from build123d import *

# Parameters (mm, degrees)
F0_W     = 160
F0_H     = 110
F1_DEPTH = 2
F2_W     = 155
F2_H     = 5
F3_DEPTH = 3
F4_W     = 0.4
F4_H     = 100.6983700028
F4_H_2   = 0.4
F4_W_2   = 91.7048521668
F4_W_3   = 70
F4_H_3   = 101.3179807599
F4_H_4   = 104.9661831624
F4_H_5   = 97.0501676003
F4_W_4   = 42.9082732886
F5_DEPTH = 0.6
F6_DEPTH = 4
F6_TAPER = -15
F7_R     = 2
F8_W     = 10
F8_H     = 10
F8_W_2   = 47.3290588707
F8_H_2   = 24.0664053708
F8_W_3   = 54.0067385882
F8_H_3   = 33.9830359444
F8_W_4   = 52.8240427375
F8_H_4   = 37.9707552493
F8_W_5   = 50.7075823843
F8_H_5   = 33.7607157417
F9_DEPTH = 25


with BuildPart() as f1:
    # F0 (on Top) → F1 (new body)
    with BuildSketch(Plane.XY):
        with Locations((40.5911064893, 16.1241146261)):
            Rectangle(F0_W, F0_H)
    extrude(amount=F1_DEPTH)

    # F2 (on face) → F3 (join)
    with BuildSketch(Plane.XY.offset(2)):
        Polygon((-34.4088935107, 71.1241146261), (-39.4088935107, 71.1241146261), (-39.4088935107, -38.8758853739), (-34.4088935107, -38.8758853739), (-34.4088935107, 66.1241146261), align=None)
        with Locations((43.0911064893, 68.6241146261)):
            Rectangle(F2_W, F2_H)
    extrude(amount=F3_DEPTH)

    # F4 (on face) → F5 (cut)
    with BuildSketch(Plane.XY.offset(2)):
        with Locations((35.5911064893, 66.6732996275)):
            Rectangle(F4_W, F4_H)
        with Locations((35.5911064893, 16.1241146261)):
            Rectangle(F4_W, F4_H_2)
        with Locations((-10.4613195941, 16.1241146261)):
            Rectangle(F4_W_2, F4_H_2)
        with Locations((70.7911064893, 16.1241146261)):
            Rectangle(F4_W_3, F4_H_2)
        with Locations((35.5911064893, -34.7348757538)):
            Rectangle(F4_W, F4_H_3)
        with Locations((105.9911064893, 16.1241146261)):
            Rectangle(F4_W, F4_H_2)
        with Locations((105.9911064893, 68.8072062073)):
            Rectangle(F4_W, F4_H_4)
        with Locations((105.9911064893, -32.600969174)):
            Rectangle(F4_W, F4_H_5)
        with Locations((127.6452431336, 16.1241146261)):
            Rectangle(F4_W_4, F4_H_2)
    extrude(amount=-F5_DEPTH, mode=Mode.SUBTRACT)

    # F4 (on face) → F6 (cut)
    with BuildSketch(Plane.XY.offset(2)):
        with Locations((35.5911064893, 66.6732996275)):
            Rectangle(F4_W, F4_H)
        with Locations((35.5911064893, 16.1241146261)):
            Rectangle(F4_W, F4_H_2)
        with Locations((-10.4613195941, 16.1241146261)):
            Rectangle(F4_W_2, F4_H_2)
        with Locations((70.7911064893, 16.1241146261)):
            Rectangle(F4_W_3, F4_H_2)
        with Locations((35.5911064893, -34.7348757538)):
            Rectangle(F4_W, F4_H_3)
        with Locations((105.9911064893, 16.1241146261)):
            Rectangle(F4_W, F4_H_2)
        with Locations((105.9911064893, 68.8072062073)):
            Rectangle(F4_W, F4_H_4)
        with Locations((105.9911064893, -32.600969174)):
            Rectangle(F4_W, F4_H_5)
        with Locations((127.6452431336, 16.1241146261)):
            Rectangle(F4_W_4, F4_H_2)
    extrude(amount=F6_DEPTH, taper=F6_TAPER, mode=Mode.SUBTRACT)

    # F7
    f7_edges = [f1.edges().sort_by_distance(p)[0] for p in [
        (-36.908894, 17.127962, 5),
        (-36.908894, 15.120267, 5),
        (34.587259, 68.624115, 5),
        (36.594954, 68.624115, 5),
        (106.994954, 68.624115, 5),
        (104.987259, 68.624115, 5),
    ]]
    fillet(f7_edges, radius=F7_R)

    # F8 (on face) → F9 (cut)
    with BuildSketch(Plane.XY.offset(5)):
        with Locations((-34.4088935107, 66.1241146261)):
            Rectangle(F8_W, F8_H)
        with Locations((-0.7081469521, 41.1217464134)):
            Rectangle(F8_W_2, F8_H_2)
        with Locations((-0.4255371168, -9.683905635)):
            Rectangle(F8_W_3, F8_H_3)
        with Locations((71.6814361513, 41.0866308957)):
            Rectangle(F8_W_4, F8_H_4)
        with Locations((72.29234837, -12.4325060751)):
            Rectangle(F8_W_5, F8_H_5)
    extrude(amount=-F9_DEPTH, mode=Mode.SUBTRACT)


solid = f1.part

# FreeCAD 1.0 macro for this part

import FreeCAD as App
import Part
import Sketcher

V = App.Vector


def edges_at(feature, points):
    """Names of the edges that pass closest to the given points."""
    edges = feature.Shape.Edges
    near = lambda p: min(range(len(edges)), key=lambda i: edges[i].distToShape(Part.Vertex(*p))[0])
    return sorted({f"Edge{near(p) + 1}" for p in points})

doc = App.newDocument("Part")
body = doc.addObject("PartDesign::Body", "Body")

sketch1 = body.newObject("Sketcher::SketchObject", "Sketch")
sketch1.AttachmentSupport = (doc.getObject("XY_Plane"), [""])
sketch1.MapMode = "FlatFace"
sketch1.addGeometry(Part.LineSegment(V(-39, 71, 0), V(-39, -39, 0)), False)
sketch1.addGeometry(Part.LineSegment(V(-39, -39, 0), V(121, -39, 0)), False)
sketch1.addGeometry(Part.LineSegment(V(121, -39, 0), V(121, 71, 0)), False)
sketch1.addGeometry(Part.LineSegment(V(121, 71, 0), V(-39, 71, 0)), False)
sketch1.addConstraint(Sketcher.Constraint("Coincident", 0, 2, 1, 1))
sketch1.addConstraint(Sketcher.Constraint("Coincident", 1, 2, 2, 1))
sketch1.addConstraint(Sketcher.Constraint("Coincident", 2, 2, 3, 1))
sketch1.addConstraint(Sketcher.Constraint("Coincident", 3, 2, 0, 1))
sketch1.addConstraint(Sketcher.Constraint("Vertical", 0))
sketch1.addConstraint(Sketcher.Constraint("Horizontal", 1))
sketch1.addConstraint(Sketcher.Constraint("Vertical", 2))
sketch1.addConstraint(Sketcher.Constraint("Horizontal", 3))
sketch1.addConstraint(Sketcher.Constraint("DistanceX", 1, 1, 1, 2, 160.0))
sketch1.addConstraint(Sketcher.Constraint("DistanceY", 0, 2, 0, 1, 110.0))
sketch1.addConstraint(Sketcher.Constraint("DistanceX", 0, 2, -1, 1, 39.408894))
sketch1.addConstraint(Sketcher.Constraint("DistanceY", 0, 2, -1, 1, 38.875885))
pad1 = body.newObject("PartDesign::Pad", "Pad")
pad1.Profile = sketch1
pad1.Length = 2

sketch2 = body.newObject("Sketcher::SketchObject", "Sketch001")
sketch2.AttachmentSupport = (doc.getObject("XY_Plane"), [""])
sketch2.MapMode = "FlatFace"
sketch2.AttachmentOffset = App.Placement(V(0, 0, 2), App.Rotation())
sketch2.addGeometry(Part.LineSegment(V(-39, 71, 0), V(-39, -39, 0)), False)
sketch2.addGeometry(Part.LineSegment(V(-39, -39, 0), V(-34, -39, 0)), False)
sketch2.addGeometry(Part.LineSegment(V(-34, -39, 0), V(-34, 66, 0)), False)
sketch2.addGeometry(Part.LineSegment(V(-34, 66, 0), V(121, 66, 0)), False)
sketch2.addGeometry(Part.LineSegment(V(121, 66, 0), V(121, 71, 0)), False)
sketch2.addGeometry(Part.LineSegment(V(121, 71, 0), V(-39, 71, 0)), False)
sketch2.addConstraint(Sketcher.Constraint("Coincident", 0, 2, 1, 1))
sketch2.addConstraint(Sketcher.Constraint("Coincident", 1, 2, 2, 1))
sketch2.addConstraint(Sketcher.Constraint("Coincident", 2, 2, 3, 1))
sketch2.addConstraint(Sketcher.Constraint("Coincident", 3, 2, 4, 1))
sketch2.addConstraint(Sketcher.Constraint("Coincident", 4, 2, 5, 1))
sketch2.addConstraint(Sketcher.Constraint("Coincident", 5, 2, 0, 1))
sketch2.addConstraint(Sketcher.Constraint("Vertical", 0))
sketch2.addConstraint(Sketcher.Constraint("Horizontal", 1))
sketch2.addConstraint(Sketcher.Constraint("Vertical", 2))
sketch2.addConstraint(Sketcher.Constraint("Horizontal", 3))
sketch2.addConstraint(Sketcher.Constraint("Vertical", 4))
sketch2.addConstraint(Sketcher.Constraint("Horizontal", 5))
sketch2.addConstraint(Sketcher.Constraint("Equal", 1, 4))
sketch2.addConstraint(Sketcher.Constraint("DistanceX", 1, 1, 1, 2, 5.0))
sketch2.addConstraint(Sketcher.Constraint("DistanceX", 3, 1, 3, 2, 155.0))
sketch2.addConstraint(Sketcher.Constraint("DistanceY", 0, 2, 0, 1, 110.0))
sketch2.addConstraint(Sketcher.Constraint("DistanceX", 0, 2, -1, 1, 39.408894))
sketch2.addConstraint(Sketcher.Constraint("DistanceY", 0, 2, -1, 1, 38.875885))
pad2 = body.newObject("PartDesign::Pad", "Pad001")
pad2.Profile = sketch2
pad2.Length = 3

sketch3 = body.newObject("Sketcher::SketchObject", "Sketch002")
sketch3.AttachmentSupport = (doc.getObject("XY_Plane"), [""])
sketch3.MapMode = "FlatFace"
sketch3.AttachmentOffset = App.Placement(V(0, 0, 2), App.Rotation())
sketch3.addGeometry(Part.LineSegment(V(35.39, 117.02, 0), V(35.39, 16.32, 0)), False)
sketch3.addGeometry(Part.LineSegment(V(35.39, 16.32, 0), V(-56.31, 16.32, 0)), False)
sketch3.addGeometry(Part.LineSegment(V(-56.31, 16.32, 0), V(-56.31, 15.92, 0)), False)
sketch3.addGeometry(Part.LineSegment(V(-56.31, 15.92, 0), V(35.39, 15.92, 0)), False)
sketch3.addGeometry(Part.LineSegment(V(35.39, 15.92, 0), V(35.39, -85.39, 0)), False)
sketch3.addGeometry(Part.LineSegment(V(35.39, -85.39, 0), V(35.79, -85.39, 0)), False)
sketch3.addGeometry(Part.LineSegment(V(35.79, -85.39, 0), V(35.79, 15.92, 0)), False)
sketch3.addGeometry(Part.LineSegment(V(35.79, 15.92, 0), V(105.79, 15.92, 0)), False)
sketch3.addGeometry(Part.LineSegment(V(105.79, 15.92, 0), V(105.79, -81.13, 0)), False)
sketch3.addGeometry(Part.LineSegment(V(105.79, -81.13, 0), V(106.19, -81.13, 0)), False)
sketch3.addGeometry(Part.LineSegment(V(106.19, -81.13, 0), V(106.19, 15.92, 0)), False)
sketch3.addGeometry(Part.LineSegment(V(106.19, 15.92, 0), V(149.1, 15.92, 0)), False)
sketch3.addGeometry(Part.LineSegment(V(149.1, 15.92, 0), V(149.1, 16.32, 0)), False)
sketch3.addGeometry(Part.LineSegment(V(149.1, 16.32, 0), V(106.19, 16.32, 0)), False)
sketch3.addGeometry(Part.LineSegment(V(106.19, 16.32, 0), V(106.19, 121.29, 0)), False)
sketch3.addGeometry(Part.LineSegment(V(106.19, 121.29, 0), V(105.79, 121.29, 0)), False)
sketch3.addGeometry(Part.LineSegment(V(105.79, 121.29, 0), V(105.79, 16.32, 0)), False)
sketch3.addGeometry(Part.LineSegment(V(105.79, 16.32, 0), V(35.79, 16.32, 0)), False)
sketch3.addGeometry(Part.LineSegment(V(35.79, 16.32, 0), V(35.79, 117.02, 0)), False)
sketch3.addGeometry(Part.LineSegment(V(35.79, 117.02, 0), V(35.39, 117.02, 0)), False)
sketch3.addConstraint(Sketcher.Constraint("Coincident", 0, 2, 1, 1))
sketch3.addConstraint(Sketcher.Constraint("Coincident", 1, 2, 2, 1))
sketch3.addConstraint(Sketcher.Constraint("Coincident", 2, 2, 3, 1))
sketch3.addConstraint(Sketcher.Constraint("Coincident", 3, 2, 4, 1))
sketch3.addConstraint(Sketcher.Constraint("Coincident", 4, 2, 5, 1))
sketch3.addConstraint(Sketcher.Constraint("Coincident", 5, 2, 6, 1))
sketch3.addConstraint(Sketcher.Constraint("Coincident", 6, 2, 7, 1))
sketch3.addConstraint(Sketcher.Constraint("Coincident", 7, 2, 8, 1))
sketch3.addConstraint(Sketcher.Constraint("Coincident", 8, 2, 9, 1))
sketch3.addConstraint(Sketcher.Constraint("Coincident", 9, 2, 10, 1))
sketch3.addConstraint(Sketcher.Constraint("Coincident", 10, 2, 11, 1))
sketch3.addConstraint(Sketcher.Constraint("Coincident", 11, 2, 12, 1))
sketch3.addConstraint(Sketcher.Constraint("Coincident", 12, 2, 13, 1))
sketch3.addConstraint(Sketcher.Constraint("Coincident", 13, 2, 14, 1))
sketch3.addConstraint(Sketcher.Constraint("Coincident", 14, 2, 15, 1))
sketch3.addConstraint(Sketcher.Constraint("Coincident", 15, 2, 16, 1))
sketch3.addConstraint(Sketcher.Constraint("Coincident", 16, 2, 17, 1))
sketch3.addConstraint(Sketcher.Constraint("Coincident", 17, 2, 18, 1))
sketch3.addConstraint(Sketcher.Constraint("Coincident", 18, 2, 19, 1))
sketch3.addConstraint(Sketcher.Constraint("Coincident", 19, 2, 0, 1))
sketch3.addConstraint(Sketcher.Constraint("Vertical", 0))
sketch3.addConstraint(Sketcher.Constraint("Horizontal", 1))
sketch3.addConstraint(Sketcher.Constraint("Vertical", 2))
sketch3.addConstraint(Sketcher.Constraint("Horizontal", 3))
sketch3.addConstraint(Sketcher.Constraint("Vertical", 4))
sketch3.addConstraint(Sketcher.Constraint("Horizontal", 5))
sketch3.addConstraint(Sketcher.Constraint("Vertical", 6))
sketch3.addConstraint(Sketcher.Constraint("Horizontal", 7))
sketch3.addConstraint(Sketcher.Constraint("Vertical", 8))
sketch3.addConstraint(Sketcher.Constraint("Horizontal", 9))
sketch3.addConstraint(Sketcher.Constraint("Vertical", 10))
sketch3.addConstraint(Sketcher.Constraint("Horizontal", 11))
sketch3.addConstraint(Sketcher.Constraint("Vertical", 12))
sketch3.addConstraint(Sketcher.Constraint("Horizontal", 13))
sketch3.addConstraint(Sketcher.Constraint("Vertical", 14))
sketch3.addConstraint(Sketcher.Constraint("Horizontal", 15))
sketch3.addConstraint(Sketcher.Constraint("Vertical", 16))
sketch3.addConstraint(Sketcher.Constraint("Horizontal", 17))
sketch3.addConstraint(Sketcher.Constraint("Vertical", 18))
sketch3.addConstraint(Sketcher.Constraint("Horizontal", 19))
sketch3.addConstraint(Sketcher.Constraint("Horizontal", 3, 2, 6, 2))
sketch3.addConstraint(Sketcher.Constraint("Horizontal", 7, 2, 10, 2))
sketch3.addConstraint(Sketcher.Constraint("Horizontal", 1, 2, 12, 2))
sketch3.addConstraint(Sketcher.Constraint("Horizontal", 13, 2, 16, 2))
sketch3.addConstraint(Sketcher.Constraint("Vertical", 0, 2, 3, 2))
sketch3.addConstraint(Sketcher.Constraint("Vertical", 10, 2, 13, 2))
sketch3.addConstraint(Sketcher.Constraint("Vertical", 8, 2, 15, 2))
sketch3.addConstraint(Sketcher.Constraint("Vertical", 6, 2, 17, 2))
sketch3.addConstraint(Sketcher.Constraint("Equal", 5, 9))
sketch3.addConstraint(Sketcher.Constraint("Equal", 19, 2))
sketch3.addConstraint(Sketcher.Constraint("DistanceX", 7, 1, 7, 2, 70.0))
sketch3.addConstraint(Sketcher.Constraint("DistanceX", 5, 1, 5, 2, 0.4))
sketch3.addConstraint(Sketcher.Constraint("DistanceY", 0, 2, 0, 1, 100.69837))
sketch3.addConstraint(Sketcher.Constraint("DistanceY", 4, 2, 4, 1, 101.317981))
sketch3.addConstraint(Sketcher.Constraint("DistanceX", 1, 2, 1, 1, 91.704852))
sketch3.addConstraint(Sketcher.Constraint("DistanceX", 11, 1, 11, 2, 42.908273))
sketch3.addConstraint(Sketcher.Constraint("DistanceY", 8, 2, 8, 1, 97.050168))
sketch3.addConstraint(Sketcher.Constraint("DistanceY", 14, 1, 14, 2, 104.966183))
sketch3.addConstraint(Sketcher.Constraint("DistanceX", -1, 1, 11, 2, 149.09938))
sketch3.addConstraint(Sketcher.Constraint("DistanceY", -1, 1, 0, 2, 16.324115))
pocket1 = body.newObject("PartDesign::Pocket", "Pocket")
pocket1.Profile = sketch3
pocket1.Length = 0.6

sketch4 = body.newObject("Sketcher::SketchObject", "Sketch003")
sketch4.AttachmentSupport = (doc.getObject("XY_Plane"), [""])
sketch4.MapMode = "FlatFace"
sketch4.AttachmentOffset = App.Placement(V(0, 0, 2), App.Rotation())
sketch4.addGeometry(Part.LineSegment(V(35.39, 117.02, 0), V(35.39, 16.32, 0)), False)
sketch4.addGeometry(Part.LineSegment(V(35.39, 16.32, 0), V(-56.31, 16.32, 0)), False)
sketch4.addGeometry(Part.LineSegment(V(-56.31, 16.32, 0), V(-56.31, 15.92, 0)), False)
sketch4.addGeometry(Part.LineSegment(V(-56.31, 15.92, 0), V(35.39, 15.92, 0)), False)
sketch4.addGeometry(Part.LineSegment(V(35.39, 15.92, 0), V(35.39, -85.39, 0)), False)
sketch4.addGeometry(Part.LineSegment(V(35.39, -85.39, 0), V(35.79, -85.39, 0)), False)
sketch4.addGeometry(Part.LineSegment(V(35.79, -85.39, 0), V(35.79, 15.92, 0)), False)
sketch4.addGeometry(Part.LineSegment(V(35.79, 15.92, 0), V(105.79, 15.92, 0)), False)
sketch4.addGeometry(Part.LineSegment(V(105.79, 15.92, 0), V(105.79, -81.13, 0)), False)
sketch4.addGeometry(Part.LineSegment(V(105.79, -81.13, 0), V(106.19, -81.13, 0)), False)
sketch4.addGeometry(Part.LineSegment(V(106.19, -81.13, 0), V(106.19, 15.92, 0)), False)
sketch4.addGeometry(Part.LineSegment(V(106.19, 15.92, 0), V(149.1, 15.92, 0)), False)
sketch4.addGeometry(Part.LineSegment(V(149.1, 15.92, 0), V(149.1, 16.32, 0)), False)
sketch4.addGeometry(Part.LineSegment(V(149.1, 16.32, 0), V(106.19, 16.32, 0)), False)
sketch4.addGeometry(Part.LineSegment(V(106.19, 16.32, 0), V(106.19, 121.29, 0)), False)
sketch4.addGeometry(Part.LineSegment(V(106.19, 121.29, 0), V(105.79, 121.29, 0)), False)
sketch4.addGeometry(Part.LineSegment(V(105.79, 121.29, 0), V(105.79, 16.32, 0)), False)
sketch4.addGeometry(Part.LineSegment(V(105.79, 16.32, 0), V(35.79, 16.32, 0)), False)
sketch4.addGeometry(Part.LineSegment(V(35.79, 16.32, 0), V(35.79, 117.02, 0)), False)
sketch4.addGeometry(Part.LineSegment(V(35.79, 117.02, 0), V(35.39, 117.02, 0)), False)
sketch4.addConstraint(Sketcher.Constraint("Coincident", 0, 2, 1, 1))
sketch4.addConstraint(Sketcher.Constraint("Coincident", 1, 2, 2, 1))
sketch4.addConstraint(Sketcher.Constraint("Coincident", 2, 2, 3, 1))
sketch4.addConstraint(Sketcher.Constraint("Coincident", 3, 2, 4, 1))
sketch4.addConstraint(Sketcher.Constraint("Coincident", 4, 2, 5, 1))
sketch4.addConstraint(Sketcher.Constraint("Coincident", 5, 2, 6, 1))
sketch4.addConstraint(Sketcher.Constraint("Coincident", 6, 2, 7, 1))
sketch4.addConstraint(Sketcher.Constraint("Coincident", 7, 2, 8, 1))
sketch4.addConstraint(Sketcher.Constraint("Coincident", 8, 2, 9, 1))
sketch4.addConstraint(Sketcher.Constraint("Coincident", 9, 2, 10, 1))
sketch4.addConstraint(Sketcher.Constraint("Coincident", 10, 2, 11, 1))
sketch4.addConstraint(Sketcher.Constraint("Coincident", 11, 2, 12, 1))
sketch4.addConstraint(Sketcher.Constraint("Coincident", 12, 2, 13, 1))
sketch4.addConstraint(Sketcher.Constraint("Coincident", 13, 2, 14, 1))
sketch4.addConstraint(Sketcher.Constraint("Coincident", 14, 2, 15, 1))
sketch4.addConstraint(Sketcher.Constraint("Coincident", 15, 2, 16, 1))
sketch4.addConstraint(Sketcher.Constraint("Coincident", 16, 2, 17, 1))
sketch4.addConstraint(Sketcher.Constraint("Coincident", 17, 2, 18, 1))
sketch4.addConstraint(Sketcher.Constraint("Coincident", 18, 2, 19, 1))
sketch4.addConstraint(Sketcher.Constraint("Coincident", 19, 2, 0, 1))
sketch4.addConstraint(Sketcher.Constraint("Vertical", 0))
sketch4.addConstraint(Sketcher.Constraint("Horizontal", 1))
sketch4.addConstraint(Sketcher.Constraint("Vertical", 2))
sketch4.addConstraint(Sketcher.Constraint("Horizontal", 3))
sketch4.addConstraint(Sketcher.Constraint("Vertical", 4))
sketch4.addConstraint(Sketcher.Constraint("Horizontal", 5))
sketch4.addConstraint(Sketcher.Constraint("Vertical", 6))
sketch4.addConstraint(Sketcher.Constraint("Horizontal", 7))
sketch4.addConstraint(Sketcher.Constraint("Vertical", 8))
sketch4.addConstraint(Sketcher.Constraint("Horizontal", 9))
sketch4.addConstraint(Sketcher.Constraint("Vertical", 10))
sketch4.addConstraint(Sketcher.Constraint("Horizontal", 11))
sketch4.addConstraint(Sketcher.Constraint("Vertical", 12))
sketch4.addConstraint(Sketcher.Constraint("Horizontal", 13))
sketch4.addConstraint(Sketcher.Constraint("Vertical", 14))
sketch4.addConstraint(Sketcher.Constraint("Horizontal", 15))
sketch4.addConstraint(Sketcher.Constraint("Vertical", 16))
sketch4.addConstraint(Sketcher.Constraint("Horizontal", 17))
sketch4.addConstraint(Sketcher.Constraint("Vertical", 18))
sketch4.addConstraint(Sketcher.Constraint("Horizontal", 19))
sketch4.addConstraint(Sketcher.Constraint("Horizontal", 3, 2, 6, 2))
sketch4.addConstraint(Sketcher.Constraint("Horizontal", 7, 2, 10, 2))
sketch4.addConstraint(Sketcher.Constraint("Horizontal", 1, 2, 12, 2))
sketch4.addConstraint(Sketcher.Constraint("Horizontal", 13, 2, 16, 2))
sketch4.addConstraint(Sketcher.Constraint("Vertical", 0, 2, 3, 2))
sketch4.addConstraint(Sketcher.Constraint("Vertical", 10, 2, 13, 2))
sketch4.addConstraint(Sketcher.Constraint("Vertical", 8, 2, 15, 2))
sketch4.addConstraint(Sketcher.Constraint("Vertical", 6, 2, 17, 2))
sketch4.addConstraint(Sketcher.Constraint("Equal", 5, 9))
sketch4.addConstraint(Sketcher.Constraint("Equal", 19, 2))
sketch4.addConstraint(Sketcher.Constraint("DistanceX", 7, 1, 7, 2, 70.0))
sketch4.addConstraint(Sketcher.Constraint("DistanceX", 5, 1, 5, 2, 0.4))
sketch4.addConstraint(Sketcher.Constraint("DistanceY", 0, 2, 0, 1, 100.69837))
sketch4.addConstraint(Sketcher.Constraint("DistanceY", 4, 2, 4, 1, 101.317981))
sketch4.addConstraint(Sketcher.Constraint("DistanceX", 1, 2, 1, 1, 91.704852))
sketch4.addConstraint(Sketcher.Constraint("DistanceX", 11, 1, 11, 2, 42.908273))
sketch4.addConstraint(Sketcher.Constraint("DistanceY", 8, 2, 8, 1, 97.050168))
sketch4.addConstraint(Sketcher.Constraint("DistanceY", 14, 1, 14, 2, 104.966183))
sketch4.addConstraint(Sketcher.Constraint("DistanceX", -1, 1, 11, 2, 149.09938))
sketch4.addConstraint(Sketcher.Constraint("DistanceY", -1, 1, 0, 2, 16.324115))
pocket2 = body.newObject("PartDesign::Pocket", "Pocket001")
pocket2.Profile = sketch4
pocket2.Length = 4
pocket2.Reversed = True
pocket2.TaperAngle = 15
doc.recompute()

fillet = body.newObject("PartDesign::Fillet", "Fillet")
fillet.Base = (pocket2, edges_at(pocket2, [
    (-36.909, 17.128, 5),
    (-36.909, 15.12, 5),
    (34.587, 68.624, 5),
    (36.595, 68.624, 5),
    (106.995, 68.624, 5),
    (104.987, 68.624, 5),
]))
fillet.Radius = 2

sketch5 = body.newObject("Sketcher::SketchObject", "Sketch004")
sketch5.AttachmentSupport = (doc.getObject("XY_Plane"), [""])
sketch5.MapMode = "FlatFace"
sketch5.AttachmentOffset = App.Placement(V(0, 0, 5), App.Rotation())
sketch5.addGeometry(Part.LineSegment(V(-39, 71, 0), V(-39, 61, 0)), False)
sketch5.addGeometry(Part.LineSegment(V(-39, 61, 0), V(-29, 61, 0)), False)
sketch5.addGeometry(Part.LineSegment(V(-29, 61, 0), V(-29, 71, 0)), False)
sketch5.addGeometry(Part.LineSegment(V(-29, 71, 0), V(-39, 71, 0)), False)
sketch5.addGeometry(Part.LineSegment(V(-24, 53, 0), V(-24, 29, 0)), False)
sketch5.addGeometry(Part.LineSegment(V(-24, 29, 0), V(23, 29, 0)), False)
sketch5.addGeometry(Part.LineSegment(V(23, 29, 0), V(23, 53, 0)), False)
sketch5.addGeometry(Part.LineSegment(V(23, 53, 0), V(-24, 53, 0)), False)
sketch5.addGeometry(Part.LineSegment(V(-27, 7, 0), V(-27, -27, 0)), False)
sketch5.addGeometry(Part.LineSegment(V(-27, -27, 0), V(27, -27, 0)), False)
sketch5.addGeometry(Part.LineSegment(V(27, -27, 0), V(27, 7, 0)), False)
sketch5.addGeometry(Part.LineSegment(V(27, 7, 0), V(-27, 7, 0)), False)
sketch5.addGeometry(Part.LineSegment(V(45, 60, 0), V(45, 22, 0)), False)
sketch5.addGeometry(Part.LineSegment(V(45, 22, 0), V(98, 22, 0)), False)
sketch5.addGeometry(Part.LineSegment(V(98, 22, 0), V(98, 60, 0)), False)
sketch5.addGeometry(Part.LineSegment(V(98, 60, 0), V(45, 60, 0)), False)
sketch5.addGeometry(Part.LineSegment(V(47, 4, 0), V(47, -29, 0)), False)
sketch5.addGeometry(Part.LineSegment(V(47, -29, 0), V(98, -29, 0)), False)
sketch5.addGeometry(Part.LineSegment(V(98, -29, 0), V(98, 4, 0)), False)
sketch5.addGeometry(Part.LineSegment(V(98, 4, 0), V(47, 4, 0)), False)
sketch5.addConstraint(Sketcher.Constraint("Coincident", 0, 2, 1, 1))
sketch5.addConstraint(Sketcher.Constraint("Coincident", 1, 2, 2, 1))
sketch5.addConstraint(Sketcher.Constraint("Coincident", 2, 2, 3, 1))
sketch5.addConstraint(Sketcher.Constraint("Coincident", 3, 2, 0, 1))
sketch5.addConstraint(Sketcher.Constraint("Coincident", 4, 2, 5, 1))
sketch5.addConstraint(Sketcher.Constraint("Coincident", 5, 2, 6, 1))
sketch5.addConstraint(Sketcher.Constraint("Coincident", 6, 2, 7, 1))
sketch5.addConstraint(Sketcher.Constraint("Coincident", 7, 2, 4, 1))
sketch5.addConstraint(Sketcher.Constraint("Coincident", 8, 2, 9, 1))
sketch5.addConstraint(Sketcher.Constraint("Coincident", 9, 2, 10, 1))
sketch5.addConstraint(Sketcher.Constraint("Coincident", 10, 2, 11, 1))
sketch5.addConstraint(Sketcher.Constraint("Coincident", 11, 2, 8, 1))
sketch5.addConstraint(Sketcher.Constraint("Coincident", 12, 2, 13, 1))
sketch5.addConstraint(Sketcher.Constraint("Coincident", 13, 2, 14, 1))
sketch5.addConstraint(Sketcher.Constraint("Coincident", 14, 2, 15, 1))
sketch5.addConstraint(Sketcher.Constraint("Coincident", 15, 2, 12, 1))
sketch5.addConstraint(Sketcher.Constraint("Coincident", 16, 2, 17, 1))
sketch5.addConstraint(Sketcher.Constraint("Coincident", 17, 2, 18, 1))
sketch5.addConstraint(Sketcher.Constraint("Coincident", 18, 2, 19, 1))
sketch5.addConstraint(Sketcher.Constraint("Coincident", 19, 2, 16, 1))
sketch5.addConstraint(Sketcher.Constraint("Vertical", 0))
sketch5.addConstraint(Sketcher.Constraint("Horizontal", 1))
sketch5.addConstraint(Sketcher.Constraint("Vertical", 2))
sketch5.addConstraint(Sketcher.Constraint("Horizontal", 3))
sketch5.addConstraint(Sketcher.Constraint("Vertical", 4))
sketch5.addConstraint(Sketcher.Constraint("Horizontal", 5))
sketch5.addConstraint(Sketcher.Constraint("Vertical", 6))
sketch5.addConstraint(Sketcher.Constraint("Horizontal", 7))
sketch5.addConstraint(Sketcher.Constraint("Vertical", 8))
sketch5.addConstraint(Sketcher.Constraint("Horizontal", 9))
sketch5.addConstraint(Sketcher.Constraint("Vertical", 10))
sketch5.addConstraint(Sketcher.Constraint("Horizontal", 11))
sketch5.addConstraint(Sketcher.Constraint("Vertical", 12))
sketch5.addConstraint(Sketcher.Constraint("Horizontal", 13))
sketch5.addConstraint(Sketcher.Constraint("Vertical", 14))
sketch5.addConstraint(Sketcher.Constraint("Horizontal", 15))
sketch5.addConstraint(Sketcher.Constraint("Vertical", 16))
sketch5.addConstraint(Sketcher.Constraint("Horizontal", 17))
sketch5.addConstraint(Sketcher.Constraint("Vertical", 18))
sketch5.addConstraint(Sketcher.Constraint("Horizontal", 19))
sketch5.addConstraint(Sketcher.Constraint("Equal", 3, 0))
sketch5.addConstraint(Sketcher.Constraint("DistanceX", 1, 1, 1, 2, 10.0))
sketch5.addConstraint(Sketcher.Constraint("DistanceX", 5, 1, 5, 2, 47.329059))
sketch5.addConstraint(Sketcher.Constraint("DistanceX", 9, 1, 9, 2, 54.006739))
sketch5.addConstraint(Sketcher.Constraint("DistanceX", 16, 2, 13, 2, 51.1549))
sketch5.addConstraint(Sketcher.Constraint("DistanceY", 18, 2, 13, 2, 17.653401))
sketch5.addConstraint(Sketcher.Constraint("DistanceX", 13, 1, 13, 2, 52.824043))
sketch5.addConstraint(Sketcher.Constraint("DistanceX", 17, 1, 17, 2, 50.707582))
sketch5.addConstraint(Sketcher.Constraint("DistanceY", 4, 2, 4, 1, 24.066405))
sketch5.addConstraint(Sketcher.Constraint("DistanceY", 8, 2, 8, 1, 33.983036))
sketch5.addConstraint(Sketcher.Constraint("DistanceY", 12, 2, 12, 1, 37.970755))
sketch5.addConstraint(Sketcher.Constraint("DistanceY", 16, 2, 16, 1, 33.760716))
sketch5.addConstraint(Sketcher.Constraint("DistanceY", -1, 1, 6, 2, 53.154949))
sketch5.addConstraint(Sketcher.Constraint("DistanceY", -1, 1, 14, 2, 60.072009))
sketch5.addConstraint(Sketcher.Constraint("DistanceX", -1, 1, 17, 2, 97.64614))
sketch5.addConstraint(Sketcher.Constraint("DistanceY", 4, 2, 1, 2, 32.035571))
sketch5.addConstraint(Sketcher.Constraint("DistanceX", 8, 2, 4, 2, 3.05623))
sketch5.addConstraint(Sketcher.Constraint("DistanceY", 8, 2, 1, 2, 87.799538))
sketch5.addConstraint(Sketcher.Constraint("DistanceX", 4, 2, 12, 2, 69.642091))
sketch5.addConstraint(Sketcher.Constraint("DistanceX", 0, 2, -1, 1, 39.408894))
pocket3 = body.newObject("PartDesign::Pocket", "Pocket002")
pocket3.Profile = sketch5
pocket3.Length = 25

doc.recompute()
